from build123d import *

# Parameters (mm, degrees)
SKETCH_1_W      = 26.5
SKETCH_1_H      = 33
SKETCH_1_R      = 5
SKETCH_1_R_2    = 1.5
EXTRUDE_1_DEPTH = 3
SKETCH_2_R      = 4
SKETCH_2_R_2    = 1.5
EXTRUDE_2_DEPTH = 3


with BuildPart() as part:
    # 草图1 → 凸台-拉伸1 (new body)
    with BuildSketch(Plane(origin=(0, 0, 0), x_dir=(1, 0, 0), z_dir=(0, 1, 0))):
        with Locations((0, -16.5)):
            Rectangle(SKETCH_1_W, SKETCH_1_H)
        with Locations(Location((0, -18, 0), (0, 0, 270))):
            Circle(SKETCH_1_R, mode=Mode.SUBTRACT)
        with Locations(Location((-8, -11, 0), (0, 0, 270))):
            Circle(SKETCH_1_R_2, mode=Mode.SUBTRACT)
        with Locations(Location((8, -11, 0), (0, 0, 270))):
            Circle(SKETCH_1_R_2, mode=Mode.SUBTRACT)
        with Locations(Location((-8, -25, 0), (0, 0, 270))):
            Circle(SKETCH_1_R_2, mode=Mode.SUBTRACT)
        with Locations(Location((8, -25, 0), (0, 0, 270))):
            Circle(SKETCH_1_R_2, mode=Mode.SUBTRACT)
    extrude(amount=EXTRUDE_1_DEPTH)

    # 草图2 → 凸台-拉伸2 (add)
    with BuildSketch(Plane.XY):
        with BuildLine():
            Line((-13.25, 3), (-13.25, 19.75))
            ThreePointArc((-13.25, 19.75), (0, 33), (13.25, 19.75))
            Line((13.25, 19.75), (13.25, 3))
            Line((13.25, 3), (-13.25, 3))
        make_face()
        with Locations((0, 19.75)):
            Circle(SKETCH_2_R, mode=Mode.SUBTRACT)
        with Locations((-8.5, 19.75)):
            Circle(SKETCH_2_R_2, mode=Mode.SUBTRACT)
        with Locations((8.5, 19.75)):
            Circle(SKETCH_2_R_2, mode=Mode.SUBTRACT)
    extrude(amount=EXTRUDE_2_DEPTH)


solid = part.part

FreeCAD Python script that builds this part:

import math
import FreeCAD as App
import Part
import Sketcher

V = App.Vector
Q = App.Units.Quantity

doc = App.newDocument("Part")
body = doc.addObject("PartDesign::Body", "Body")

sketch1 = doc.addObject("Sketcher::SketchObject", "Sketch")
body.addObject(sketch1)
sketch1.AttachmentSupport = (doc.XZ_Plane, [""])
sketch1.MapMode = "FlatFace"
sketch1.addGeometry(Part.LineSegment(V(-13.25, 0, 0), V(-13.25, 33, 0)), False)
sketch1.addGeometry(Part.LineSegment(V(-13.25, 33, 0), V(13.25, 33, 0)), False)
sketch1.addGeometry(Part.LineSegment(V(13.25, 33, 0), V(13.25, 0, 0)), False)
sketch1.addGeometry(Part.LineSegment(V(13.25, 0, 0), V(-13.25, 0, 0)), False)
sketch1.addGeometry(Part.Circle(V(-8, 25, 0), V(0, 0, 1), 1.5), False)
sketch1.addGeometry(Part.Circle(V(8, 25, 0), V(0, 0, 1), 1.5), False)
sketch1.addGeometry(Part.Circle(V(-8, 11, 0), V(0, 0, 1), 1.5), False)
sketch1.addGeometry(Part.Circle(V(0, 18, 0), V(0, 0, 1), 5), False)
sketch1.addGeometry(Part.Circle(V(8, 11, 0), V(0, 0, 1), 1.5), False)
sketch1.addConstraint(Sketcher.Constraint("Coincident", 0, 2, 1, 1))
sketch1.addConstraint(Sketcher.Constraint("Coincident", 1, 2, 2, 1))
sketch1.addConstraint(Sketcher.Constraint("Coincident", 2, 2, 3, 1))
sketch1.addConstraint(Sketcher.Constraint("Coincident", 3, 2, 0, 1))
sketch1.addConstraint(Sketcher.Constraint("Vertical", 0))
sketch1.addConstraint(Sketcher.Constraint("Horizontal", 1))
sketch1.addConstraint(Sketcher.Constraint("Vertical", 2))
sketch1.addConstraint(Sketcher.Constraint("Horizontal", 3))
sketch1.addConstraint(Sketcher.Constraint("Equal", 4, 5))
sketch1.addConstraint(Sketcher.Constraint("Equal", 5, 6))
sketch1.addConstraint(Sketcher.Constraint("Equal", 6, 8))
sketch1.addConstraint(Sketcher.Constraint("Symmetric", 2, 2, 3, 2, -1, 1))
sketch1.addConstraint(Sketcher.Constraint("Symmetric", 4, 3, 5, 3, -2))
sketch1.addConstraint(Sketcher.Constraint("Symmetric", 6, 3, 8, 3, -2))
sketch1.addConstraint(Sketcher.Constraint("PointOnObject", 7, 3, -2))
sketch1.addConstraint(Sketcher.Constraint("Vertical", 4, 3, 6, 3))
sketch1.addConstraint(Sketcher.Constraint("Diameter", 4, Q("3 mm")))
sketch1.addConstraint(Sketcher.Constraint("Diameter", 7, Q("10 mm")))
sketch1.addConstraint(Sketcher.Constraint("DistanceY", 0, 1, 0, 2, Q("33 mm")))
sketch1.addConstraint(Sketcher.Constraint("DistanceX", 1, 1, 1, 2, Q("26.5 mm")))
sketch1.addConstraint(Sketcher.Constraint("DistanceX", 4, 3, -1, 1, Q("8 mm")))
sketch1.addConstraint(Sketcher.Constraint("DistanceY", -1, 1, 4, 3, Q("25 mm")))
sketch1.addConstraint(Sketcher.Constraint("DistanceY", -1, 1, 6, 3, Q("11 mm")))
sketch1.addConstraint(Sketcher.Constraint("DistanceY", -1, 1, 7, 3, Q("18 mm")))
pad1 = doc.addObject("PartDesign::Pad", "Pad")
body.addObject(pad1)
pad1.Profile = sketch1
pad1.Length = 3
pad1.Reversed = True

sketch2 = doc.addObject("Sketcher::SketchObject", "Sketch001")
body.addObject(sketch2)
sketch2.AttachmentSupport = (doc.XY_Plane, [""])
sketch2.MapMode = "FlatFace"
sketch2.addGeometry(Part.LineSegment(V(-13.25, 19.75, 0), V(-13.25, 3, 0)), False)
sketch2.addGeometry(Part.LineSegment(V(-13.25, 3, 0), V(13.25, 3, 0)), False)
sketch2.addGeometry(Part.LineSegment(V(13.25, 3, 0), V(13.25, 19.75, 0)), False)
sketch2.addGeometry(Part.ArcOfCircle(Part.Circle(V(0, 19.75, 0), V(0, 0, 1), 13.25), math.radians(0), math.radians(180)), False)
sketch2.addGeometry(Part.Circle(V(8.5, 19.75, 0), V(0, 0, 1), 1.5), False)
sketch2.addGeometry(Part.Circle(V(0, 19.75, 0), V(0, 0, 1), 4), False)
sketch2.addGeometry(Part.Circle(V(-8.5, 19.75, 0), V(0, 0, 1), 1.5), False)
sketch2.addConstraint(Sketcher.Constraint("Coincident", 0, 2, 1, 1))
sketch2.addConstraint(Sketcher.Constraint("Coincident", 1, 2, 2, 1))
sketch2.addConstraint(Sketcher.Constraint("Tangent", 2, 2, 3, 1))
sketch2.addConstraint(Sketcher.Constraint("Tangent", 3, 2, 0, 1))
sketch2.addConstraint(Sketcher.Constraint("Vertical", 0))
sketch2.addConstraint(Sketcher.Constraint("Horizontal", 1))
sketch2.addConstraint(Sketcher.Constraint("Vertical", 2))
sketch2.addConstraint(Sketcher.Constraint("Coincident", 5, 3, 3, 3))
sketch2.addConstraint(Sketcher.Constraint("Equal", 4, 6))
sketch2.addConstraint(Sketcher.Constraint("Symmetric", 4, 3, 6, 3, -2))
sketch2.addConstraint(Sketcher.Constraint("PointOnObject", 3, 3, -2))
sketch2.addConstraint(Sketcher.Constraint("Horizontal", 3, 3, 4, 3))
sketch2.addConstraint(Sketcher.Constraint("Diameter", 4, Q("3 mm")))
sketch2.addConstraint(Sketcher.Constraint("Diameter", 5, Q("8 mm")))
sketch2.addConstraint(Sketcher.Constraint("Radius", 3, Q("13.25 mm")))
sketch2.addConstraint(Sketcher.Constraint("DistanceY", -1, 1, 0, 2, Q("3 mm")))
sketch2.addConstraint(Sketcher.Constraint("DistanceX", 6, 3, 4, 3, Q("17 mm")))
sketch2.addConstraint(Sketcher.Constraint("DistanceY", 0, 2, 0, 1, Q("16.75 mm")))
pad2 = doc.addObject("PartDesign::Pad", "Pad001")
body.addObject(pad2)
pad2.Profile = sketch2
pad2.Length = 3

doc.recompute()
